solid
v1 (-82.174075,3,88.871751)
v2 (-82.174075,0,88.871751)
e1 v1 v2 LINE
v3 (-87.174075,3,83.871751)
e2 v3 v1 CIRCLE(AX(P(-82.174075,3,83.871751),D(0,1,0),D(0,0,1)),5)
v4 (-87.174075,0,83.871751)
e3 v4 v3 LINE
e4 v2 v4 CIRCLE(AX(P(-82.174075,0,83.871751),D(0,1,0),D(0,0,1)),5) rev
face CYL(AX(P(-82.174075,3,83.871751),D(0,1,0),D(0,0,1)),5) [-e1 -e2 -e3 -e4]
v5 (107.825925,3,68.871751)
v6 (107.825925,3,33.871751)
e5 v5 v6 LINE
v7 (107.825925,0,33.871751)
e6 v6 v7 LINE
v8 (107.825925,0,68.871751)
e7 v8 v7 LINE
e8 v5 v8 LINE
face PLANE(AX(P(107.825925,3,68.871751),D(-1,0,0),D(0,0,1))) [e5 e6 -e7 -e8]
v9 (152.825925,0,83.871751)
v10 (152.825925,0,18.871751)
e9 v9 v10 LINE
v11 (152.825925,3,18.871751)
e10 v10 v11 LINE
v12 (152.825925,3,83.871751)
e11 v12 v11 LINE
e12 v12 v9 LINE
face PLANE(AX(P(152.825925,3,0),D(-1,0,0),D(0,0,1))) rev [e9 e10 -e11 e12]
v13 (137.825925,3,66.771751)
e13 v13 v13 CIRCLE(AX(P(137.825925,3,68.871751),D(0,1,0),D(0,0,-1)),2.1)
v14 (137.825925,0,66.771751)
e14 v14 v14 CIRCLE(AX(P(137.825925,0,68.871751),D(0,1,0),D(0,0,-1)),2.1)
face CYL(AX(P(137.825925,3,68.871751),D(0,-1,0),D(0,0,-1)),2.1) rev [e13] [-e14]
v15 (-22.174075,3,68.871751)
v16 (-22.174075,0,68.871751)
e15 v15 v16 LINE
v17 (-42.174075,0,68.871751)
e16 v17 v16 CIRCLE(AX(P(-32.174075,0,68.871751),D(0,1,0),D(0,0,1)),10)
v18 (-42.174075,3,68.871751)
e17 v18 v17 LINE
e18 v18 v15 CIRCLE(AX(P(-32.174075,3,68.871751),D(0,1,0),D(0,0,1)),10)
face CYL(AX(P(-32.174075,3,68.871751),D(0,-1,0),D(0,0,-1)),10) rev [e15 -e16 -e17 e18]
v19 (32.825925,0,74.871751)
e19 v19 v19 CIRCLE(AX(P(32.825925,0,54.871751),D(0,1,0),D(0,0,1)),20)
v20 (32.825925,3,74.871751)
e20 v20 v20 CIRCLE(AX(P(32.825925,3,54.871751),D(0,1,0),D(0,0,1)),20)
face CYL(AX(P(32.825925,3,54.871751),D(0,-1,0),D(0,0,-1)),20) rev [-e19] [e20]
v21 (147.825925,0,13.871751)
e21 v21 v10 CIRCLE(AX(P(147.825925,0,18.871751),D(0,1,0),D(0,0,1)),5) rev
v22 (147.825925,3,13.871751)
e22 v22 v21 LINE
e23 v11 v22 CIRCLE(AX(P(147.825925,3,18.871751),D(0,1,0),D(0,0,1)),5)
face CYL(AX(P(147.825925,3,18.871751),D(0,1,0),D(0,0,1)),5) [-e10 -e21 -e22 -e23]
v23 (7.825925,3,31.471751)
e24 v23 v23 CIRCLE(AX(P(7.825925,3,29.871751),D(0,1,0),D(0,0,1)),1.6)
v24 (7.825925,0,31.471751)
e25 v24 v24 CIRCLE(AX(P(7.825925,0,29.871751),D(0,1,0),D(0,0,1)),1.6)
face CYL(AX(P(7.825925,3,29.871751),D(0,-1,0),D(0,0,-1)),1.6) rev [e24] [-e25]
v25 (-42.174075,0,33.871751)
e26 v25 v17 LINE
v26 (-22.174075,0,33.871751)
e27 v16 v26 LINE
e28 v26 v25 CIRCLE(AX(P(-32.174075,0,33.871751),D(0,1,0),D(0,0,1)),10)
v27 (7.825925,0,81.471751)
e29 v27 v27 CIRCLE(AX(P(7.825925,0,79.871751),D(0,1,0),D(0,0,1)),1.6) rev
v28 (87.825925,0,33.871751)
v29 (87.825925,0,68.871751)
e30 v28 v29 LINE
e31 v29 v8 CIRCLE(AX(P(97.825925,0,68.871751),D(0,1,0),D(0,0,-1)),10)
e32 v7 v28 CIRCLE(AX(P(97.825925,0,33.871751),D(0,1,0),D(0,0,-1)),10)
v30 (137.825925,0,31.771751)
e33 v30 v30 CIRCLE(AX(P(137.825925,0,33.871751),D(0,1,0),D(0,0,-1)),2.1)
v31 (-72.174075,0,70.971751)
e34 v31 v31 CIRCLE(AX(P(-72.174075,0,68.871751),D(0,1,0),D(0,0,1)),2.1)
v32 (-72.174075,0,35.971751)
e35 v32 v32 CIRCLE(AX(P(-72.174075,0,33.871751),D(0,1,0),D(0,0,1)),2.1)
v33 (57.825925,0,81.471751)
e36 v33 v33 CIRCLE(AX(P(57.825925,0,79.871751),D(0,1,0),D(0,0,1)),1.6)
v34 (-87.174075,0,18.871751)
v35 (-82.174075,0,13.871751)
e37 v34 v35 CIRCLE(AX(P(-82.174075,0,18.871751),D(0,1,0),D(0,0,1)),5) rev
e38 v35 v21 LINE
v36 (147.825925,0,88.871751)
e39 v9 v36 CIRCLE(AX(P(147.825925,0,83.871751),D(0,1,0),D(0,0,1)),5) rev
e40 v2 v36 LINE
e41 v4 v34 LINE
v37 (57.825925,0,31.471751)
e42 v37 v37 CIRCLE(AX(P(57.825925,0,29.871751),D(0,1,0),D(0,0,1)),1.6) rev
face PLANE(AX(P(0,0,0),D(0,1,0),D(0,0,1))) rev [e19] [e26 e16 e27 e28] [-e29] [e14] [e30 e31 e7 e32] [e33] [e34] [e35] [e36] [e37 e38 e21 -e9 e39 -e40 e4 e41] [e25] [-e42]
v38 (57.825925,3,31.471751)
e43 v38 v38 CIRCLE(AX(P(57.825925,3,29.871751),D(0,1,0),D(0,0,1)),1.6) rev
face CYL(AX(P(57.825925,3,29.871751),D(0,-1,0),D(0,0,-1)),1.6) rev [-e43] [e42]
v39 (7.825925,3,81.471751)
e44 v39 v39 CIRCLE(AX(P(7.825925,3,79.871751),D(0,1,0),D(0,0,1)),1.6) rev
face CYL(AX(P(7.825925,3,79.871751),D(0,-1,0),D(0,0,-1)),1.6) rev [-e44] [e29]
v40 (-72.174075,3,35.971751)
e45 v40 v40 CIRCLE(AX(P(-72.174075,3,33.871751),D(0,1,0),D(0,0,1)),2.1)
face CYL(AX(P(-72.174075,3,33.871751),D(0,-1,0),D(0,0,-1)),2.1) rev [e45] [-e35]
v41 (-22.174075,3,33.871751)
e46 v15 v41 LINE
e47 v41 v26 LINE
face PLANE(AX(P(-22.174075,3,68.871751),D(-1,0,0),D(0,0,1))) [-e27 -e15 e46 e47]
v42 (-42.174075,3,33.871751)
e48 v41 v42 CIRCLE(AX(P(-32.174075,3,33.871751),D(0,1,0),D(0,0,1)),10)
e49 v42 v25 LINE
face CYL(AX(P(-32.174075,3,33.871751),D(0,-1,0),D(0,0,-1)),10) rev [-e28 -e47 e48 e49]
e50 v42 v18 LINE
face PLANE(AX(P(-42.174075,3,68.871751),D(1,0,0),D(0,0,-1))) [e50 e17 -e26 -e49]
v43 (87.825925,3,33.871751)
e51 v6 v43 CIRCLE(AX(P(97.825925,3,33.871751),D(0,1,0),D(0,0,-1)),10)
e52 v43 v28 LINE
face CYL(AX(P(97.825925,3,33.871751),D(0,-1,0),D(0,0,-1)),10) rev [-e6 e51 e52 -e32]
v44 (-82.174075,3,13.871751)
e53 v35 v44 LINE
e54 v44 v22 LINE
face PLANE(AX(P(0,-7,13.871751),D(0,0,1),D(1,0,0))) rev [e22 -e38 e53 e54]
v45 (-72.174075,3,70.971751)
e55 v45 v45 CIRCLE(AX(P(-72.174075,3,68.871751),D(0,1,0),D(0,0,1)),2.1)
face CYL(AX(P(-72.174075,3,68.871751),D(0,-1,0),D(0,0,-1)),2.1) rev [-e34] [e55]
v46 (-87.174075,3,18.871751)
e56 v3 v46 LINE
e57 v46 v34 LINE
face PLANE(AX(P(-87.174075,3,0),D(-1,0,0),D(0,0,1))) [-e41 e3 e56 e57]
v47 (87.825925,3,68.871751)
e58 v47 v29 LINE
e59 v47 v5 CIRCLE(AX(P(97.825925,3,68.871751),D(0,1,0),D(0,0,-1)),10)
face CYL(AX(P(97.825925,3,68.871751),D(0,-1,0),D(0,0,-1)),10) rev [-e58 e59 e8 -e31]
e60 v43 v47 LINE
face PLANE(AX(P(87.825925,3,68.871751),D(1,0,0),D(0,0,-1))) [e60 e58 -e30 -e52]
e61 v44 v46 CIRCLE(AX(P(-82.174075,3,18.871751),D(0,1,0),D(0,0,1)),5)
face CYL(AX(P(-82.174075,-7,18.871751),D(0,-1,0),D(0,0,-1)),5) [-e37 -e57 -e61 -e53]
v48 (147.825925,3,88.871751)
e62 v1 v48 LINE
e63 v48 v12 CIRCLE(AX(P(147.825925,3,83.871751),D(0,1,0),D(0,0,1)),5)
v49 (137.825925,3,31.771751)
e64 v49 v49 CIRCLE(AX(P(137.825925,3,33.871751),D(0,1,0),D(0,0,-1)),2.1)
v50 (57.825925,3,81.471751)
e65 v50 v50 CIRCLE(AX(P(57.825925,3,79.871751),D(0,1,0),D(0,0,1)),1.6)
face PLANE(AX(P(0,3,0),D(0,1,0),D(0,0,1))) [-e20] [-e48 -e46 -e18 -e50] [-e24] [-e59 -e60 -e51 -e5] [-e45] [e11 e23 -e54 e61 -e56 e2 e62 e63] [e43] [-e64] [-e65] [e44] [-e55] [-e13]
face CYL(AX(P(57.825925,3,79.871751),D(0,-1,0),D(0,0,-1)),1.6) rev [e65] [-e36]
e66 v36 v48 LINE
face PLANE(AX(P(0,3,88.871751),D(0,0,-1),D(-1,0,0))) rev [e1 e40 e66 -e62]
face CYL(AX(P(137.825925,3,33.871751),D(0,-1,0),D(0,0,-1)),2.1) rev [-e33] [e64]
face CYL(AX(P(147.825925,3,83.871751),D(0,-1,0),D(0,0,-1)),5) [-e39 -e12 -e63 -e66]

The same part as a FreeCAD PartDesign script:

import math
import FreeCAD as App
import Part
import Sketcher
Q = App.Units.Quantity


def edges_at(feature, points):
    """Names of the edges that pass closest to the given points."""
    edges = feature.Shape.Edges
    near = lambda p: min(range(len(edges)), key=lambda i: edges[i].distToShape(Part.Vertex(*p))[0])
    return sorted({f"Edge{near(p) + 1}" for p in points})


def add_polygon(sketch, points):
    """Adds a closed chain of lines whose ends are joined by coincident constraints."""
    first, n = sketch.GeometryCount, len(points)
    for a, b in zip(points, points[1:] + points[:1]):
        sketch.addGeometry(Part.LineSegment(App.Vector(*a, 0), App.Vector(*b, 0)), False)
    for i in range(n):
        sketch.addConstraint(Sketcher.Constraint("Coincident", first + i, 2, first + (i + 1) % n, 1))

doc = App.newDocument("Part")
body = doc.addObject("PartDesign::Body", "Body")

sketch1 = body.newObject("Sketcher::SketchObject", "Sketch")
sketch1.AttachmentSupport = (doc.getObject("XZ_Plane"), [""])
sketch1.MapMode = "FlatFace"
add_polygon(sketch1, [(-167.2, -46.1), (-167.2, 13.9), (-87.2, 13.9), (-87.2, 88.9), (152.8, 88.9), (152.8, 13.9), (232.8, 13.9), (232.8, -46.1)])
sketch1.addGeometry(Part.Circle(App.Vector(-14.7, -11.1, 0), App.Vector(0, 0, 1), 1.6), False)
add_polygon(sketch1, [(43.3, -0.1), (22.3, -0.1), (22.3, -21.1), (43.3, -21.1)])
sketch1.addGeometry(Part.Circle(App.Vector(80.3, -11.1, 0), App.Vector(0, 0, 1), 1.6), False)
sketch1.addGeometry(Part.Circle(App.Vector(-14.7, -36.1, 0), App.Vector(0, 0, 1), 1.6), False)
sketch1.addGeometry(Part.Circle(App.Vector(80.3, -36.1, 0), App.Vector(0, 0, 1), 1.6), False)
sketch1.addGeometry(Part.Circle(App.Vector(57.8, 29.9, 0), App.Vector(0, 0, 1), 1.6), False)
sketch1.addGeometry(Part.Circle(App.Vector(7.8, 79.9, 0), App.Vector(0, 0, 1), 1.6), False)
sketch1.addGeometry(Part.Circle(App.Vector(57.8, 79.9, 0), App.Vector(0, 0, 1), 1.6), False)
sketch1.addGeometry(Part.Circle(App.Vector(32.8, 54.9, 0), App.Vector(0, 0, 1), 20), False)
sketch1.addGeometry(Part.Circle(App.Vector(7.8, 29.9, 0), App.Vector(0, 0, 1), 1.6), False)
sketch1.addConstraint([
    Sketcher.Constraint("Vertical", 0),
    Sketcher.Constraint("Horizontal", 1),
    Sketcher.Constraint("Vertical", 2),
    Sketcher.Constraint("Horizontal", 3),
    Sketcher.Constraint("Vertical", 4),
    Sketcher.Constraint("Horizontal", 5),
    Sketcher.Constraint("Vertical", 6),
    Sketcher.Constraint("Horizontal", 7),
    Sketcher.Constraint("Horizontal", 9),
    Sketcher.Constraint("Vertical", 10),
    Sketcher.Constraint("Horizontal", 11),
    Sketcher.Constraint("Vertical", 12),
    Sketcher.Constraint("Equal", 8, 13),
    Sketcher.Constraint("Equal", 13, 14),
    Sketcher.Constraint("Equal", 14, 15),
    Sketcher.Constraint("Equal", 15, 16),
    Sketcher.Constraint("Equal", 16, 17),
    Sketcher.Constraint("Equal", 17, 18),
    Sketcher.Constraint("Equal", 18, 20),
    Sketcher.Constraint("Horizontal", 8, 3, 13, 3),
    Sketcher.Constraint("Horizontal", 14, 3, 15, 3),
    Sketcher.Constraint("Horizontal", 17, 3, 18, 3),
    Sketcher.Constraint("Horizontal", 16, 3, 20, 3),
    Sketcher.Constraint("Horizontal", 1, 2, 4, 2),
    Sketcher.Constraint("Vertical", 8, 3, 14, 3),
    Sketcher.Constraint("Vertical", 13, 3, 15, 3),
    Sketcher.Constraint("Vertical", 16, 3, 18, 3),
    Sketcher.Constraint("Vertical", 17, 3, 20, 3),
    Sketcher.Constraint("Equal", 1, 5),
    Sketcher.Constraint("Equal", 11, 10),
    Sketcher.Constraint("Diameter", 19, Q("40 mm")),
    Sketcher.Constraint("Diameter", 8, Q("3.2 mm")),
    Sketcher.Constraint("DistanceX", 1, 1, 1, 2, Q("80 mm")),
    Sketcher.Constraint("DistanceX", 3, 1, 3, 2, Q("240 mm")),
    Sketcher.Constraint("DistanceX", 9, 2, 9, 1, Q("21 mm")),
    Sketcher.Constraint("DistanceY", 0, 1, 0, 2, Q("60 mm")),
    Sketcher.Constraint("DistanceY", 2, 1, 2, 2, Q("75 mm")),
    Sketcher.Constraint("DistanceX", 8, 3, 13, 3, Q("95 mm")),
    Sketcher.Constraint("DistanceY", 14, 3, 8, 3, Q("25 mm")),
    Sketcher.Constraint("DistanceY", 13, 3, 16, 3, Q("41 mm")),
    Sketcher.Constraint("DistanceX", 17, 3, 16, 3, Q("50 mm")),
    Sketcher.Constraint("DistanceY", 16, 3, 17, 3, Q("50 mm")),
    Sketcher.Constraint("DistanceX", 17, 3, 19, 3, Q("25 mm")),
    Sketcher.Constraint("DistanceY", 19, 3, 17, 3, Q("25 mm")),
    Sketcher.Constraint("DistanceY", 8, 3, 0, 2, Q("25 mm")),
    Sketcher.Constraint("DistanceX", 0, 2, 20, 3, Q("175 mm")),
    Sketcher.Constraint("DistanceY", 9, 2, 20, 3, Q("30 mm")),
    Sketcher.Constraint("DistanceX", 8, 3, 9, 2, Q("37 mm")),
    Sketcher.Constraint("DistanceX", 16, 3, 13, 3, Q("22.5 mm")),
    Sketcher.Constraint("DistanceY", 8, 3, -1, 1, Q("11.128249 mm")),
    Sketcher.Constraint("DistanceX", 8, 3, -1, 1, Q("14.674075 mm")),
])
pad1 = body.newObject("PartDesign::Pad", "Pad")
pad1.Profile = sketch1
pad1.Length = 3
pad1.Reversed = True

sketch2 = body.newObject("Sketcher::SketchObject", "Sketch001")
sketch2.AttachmentSupport = (doc.getObject("XZ_Plane"), [""])
sketch2.MapMode = "FlatFace"
sketch2.AttachmentOffset = App.Placement(App.Vector(0, 0, -3), App.Rotation())
sketch2.addGeometry([
    Part.Circle(App.Vector(-149.2, -29.6, 0), App.Vector(0, 0, 1), 2),
    Part.Circle(App.Vector(-149.2, -2.6, 0), App.Vector(0, 0, 1), 2),
    Part.Circle(App.Vector(-121.7, -29.6, 0), App.Vector(0, 0, 1), 2),
    Part.Circle(App.Vector(-121.7, -2.6, 0), App.Vector(0, 0, 1), 2),
    Part.Circle(App.Vector(-51.7, -41.1, 0), App.Vector(0, 0, 1), 2.1),
    Part.Circle(App.Vector(-86.7, -41.1, 0), App.Vector(0, 0, 1), 2.1),
    Part.Circle(App.Vector(-51.7, 8.9, 0), App.Vector(0, 0, 1), 2.1),
    Part.Circle(App.Vector(-86.7, 8.9, 0), App.Vector(0, 0, 1), 2.1),
    Part.Circle(App.Vector(-135.4, -41.1, 0), App.Vector(0, 0, 1), 2.1),
    Part.Circle(App.Vector(-135.4, 8.9, 0), App.Vector(0, 0, 1), 2.1),
    Part.Circle(App.Vector(201.1, 8.9, 0), App.Vector(0, 0, 1), 2.1),
    Part.Circle(App.Vector(201.1, -41.1, 0), App.Vector(0, 0, 1), 2.1),
    Part.Circle(App.Vector(152.3, 8.9, 0), App.Vector(0, 0, 1), 2.1),
    Part.Circle(App.Vector(117.3, 8.9, 0), App.Vector(0, 0, 1), 2.1),
    Part.Circle(App.Vector(152.3, -41.1, 0), App.Vector(0, 0, 1), 2.1),
    Part.Circle(App.Vector(117.3, -41.1, 0), App.Vector(0, 0, 1), 2.1),
    Part.Circle(App.Vector(187.3, -2.6, 0), App.Vector(0, 0, 1), 2),
    Part.Circle(App.Vector(187.3, -29.6, 0), App.Vector(0, 0, 1), 2),
    Part.Circle(App.Vector(214.8, -2.6, 0), App.Vector(0, 0, 1), 2),
    Part.Circle(App.Vector(214.8, -29.6, 0), App.Vector(0, 0, 1), 2),
], False)
sketch2.addConstraint([
    Sketcher.Constraint("Equal", 0, 1),
    Sketcher.Constraint("Equal", 1, 2),
    Sketcher.Constraint("Equal", 2, 3),
    Sketcher.Constraint("Equal", 4, 5),
    Sketcher.Constraint("Equal", 5, 6),
    Sketcher.Constraint("Equal", 6, 7),
    Sketcher.Constraint("Equal", 7, 8),
    Sketcher.Constraint("Equal", 8, 9),
    Sketcher.Constraint("Equal", 9, 10),
    Sketcher.Constraint("Equal", 10, 11),
    Sketcher.Constraint("Equal", 11, 12),
    Sketcher.Constraint("Equal", 12, 13),
    Sketcher.Constraint("Equal", 13, 14),
    Sketcher.Constraint("Equal", 14, 15),
    Sketcher.Constraint("Equal", 3, 16),
    Sketcher.Constraint("Equal", 16, 17),
    Sketcher.Constraint("Equal", 17, 18),
    Sketcher.Constraint("Equal", 18, 19),
    Sketcher.Constraint("Horizontal", 0, 3, 2, 3),
    Sketcher.Constraint("Horizontal", 1, 3, 3, 3),
    Sketcher.Constraint("Horizontal", 4, 3, 5, 3),
    Sketcher.Constraint("Horizontal", 6, 3, 7, 3),
    Sketcher.Constraint("Horizontal", 5, 3, 8, 3),
    Sketcher.Constraint("Horizontal", 7, 3, 9, 3),
    Sketcher.Constraint("Horizontal", 9, 3, 10, 3),
    Sketcher.Constraint("Horizontal", 8, 3, 11, 3),
    Sketcher.Constraint("Horizontal", 10, 3, 12, 3),
    Sketcher.Constraint("Horizontal", 12, 3, 13, 3),
    Sketcher.Constraint("Horizontal", 11, 3, 14, 3),
    Sketcher.Constraint("Horizontal", 14, 3, 15, 3),
    Sketcher.Constraint("Horizontal", 3, 3, 16, 3),
    Sketcher.Constraint("Horizontal", 2, 3, 17, 3),
    Sketcher.Constraint("Horizontal", 16, 3, 18, 3),
    Sketcher.Constraint("Horizontal", 17, 3, 19, 3),
    Sketcher.Constraint("Vertical", 0, 3, 1, 3),
    Sketcher.Constraint("Vertical", 2, 3, 3, 3),
    Sketcher.Constraint("Vertical", 4, 3, 6, 3),
    Sketcher.Constraint("Vertical", 5, 3, 7, 3),
    Sketcher.Constraint("Vertical", 8, 3, 9, 3),
    Sketcher.Constraint("Vertical", 10, 3, 11, 3),
    Sketcher.Constraint("Vertical", 12, 3, 14, 3),
    Sketcher.Constraint("Vertical", 13, 3, 15, 3),
    Sketcher.Constraint("Vertical", 16, 3, 17, 3),
    Sketcher.Constraint("Vertical", 18, 3, 19, 3),
    Sketcher.Constraint("Diameter", 0, Q("4.1 mm")),
    Sketcher.Constraint("Diameter", 4, Q("4.2 mm")),
    Sketcher.Constraint("DistanceY", 0, 3, 1, 3, Q("27 mm")),
    Sketcher.Constraint("DistanceX", 2, 3, 4, 3, Q("70 mm")),
    Sketcher.Constraint("DistanceX", 5, 3, 4, 3, Q("35 mm")),
    Sketcher.Constraint("DistanceY", 4, 3, 6, 3, Q("50 mm")),
    Sketcher.Constraint("DistanceX", 6, 3, 12, 3, Q("204 mm")),
    Sketcher.Constraint("DistanceX", 13, 3, 12, 3, Q("35 mm")),
    Sketcher.Constraint("DistanceX", 12, 3, 16, 3, Q("35 mm")),
    Sketcher.Constraint("DistanceX", 0, 3, 2, 3, Q("27.5 mm")),
    Sketcher.Constraint("DistanceY", 4, 3, 2, 3, Q("11.5 mm")),
    Sketcher.Constraint("DistanceX", 16, 3, 18, 3, Q("27.5 mm")),
    Sketcher.Constraint("DistanceX", 8, 3, 2, 3, Q("13.75 mm")),
    Sketcher.Constraint("DistanceX", 6, 3, 10, 3, Q("252.75 mm")),
    Sketcher.Constraint("DistanceY", 0, 3, -1, 1, Q("29.628249 mm")),
    Sketcher.Constraint("DistanceX", 0, 3, -1, 1, Q("149.174075 mm")),
])
pocket1 = body.newObject("PartDesign::Pocket", "Pocket")
pocket1.Profile = sketch2
pocket1.Type = "ThroughAll"
pocket1.Reversed = True
doc.recompute()

fillet = body.newObject("PartDesign::Fillet", "Fillet")
fillet.Base = (pocket1, edges_at(pocket1, [
    (-167.174, 1.5, 13.872),
    (-167.174, 1.5, -46.128),
    (232.826, 1.5, -46.128),
    (232.826, 1.5, 13.872),
    (152.826, 1.5, 13.872),
    (152.826, 1.5, 88.872),
    (-87.174, 1.5, 88.872),
    (-87.174, 1.5, 13.872),
]))
fillet.Radius = 5

sketch3 = body.newObject("Sketcher::SketchObject", "Sketch002")
sketch3.AttachmentSupport = (doc.getObject("XZ_Plane"), [""])
sketch3.MapMode = "FlatFace"
sketch3.addGeometry([
    Part.Circle(App.Vector(-72.2, 33.9, 0), App.Vector(0, 0, 1), 2.1),
    Part.Circle(App.Vector(-72.2, 68.9, 0), App.Vector(0, 0, 1), 2.1),
    Part.Circle(App.Vector(137.8, 68.9, 0), App.Vector(0, 0, 1), 2.1),
    Part.Circle(App.Vector(137.8, 33.9, 0), App.Vector(0, 0, 1), 2.1),
    Part.LineSegment(App.Vector(-42.2, 33.9, 0), App.Vector(-42.2, 68.9, 0)),
    Part.ArcOfCircle(Part.Circle(App.Vector(-32.2, 68.9, 0), App.Vector(0, 0, 1), 10), math.radians(0), math.radians(180)),
    Part.LineSegment(App.Vector(-22.2, 68.9, 0), App.Vector(-22.2, 33.9, 0)),
    Part.ArcOfCircle(Part.Circle(App.Vector(-32.2, 33.9, 0), App.Vector(0, 0, 1), 10), math.radians(180), math.radians(360)),
    Part.LineSegment(App.Vector(107.8, 68.9, 0), App.Vector(107.8, 33.9, 0)),
    Part.ArcOfCircle(Part.Circle(App.Vector(97.8, 33.9, 0), App.Vector(0, 0, 1), 10), math.radians(180), math.radians(360)),
    Part.LineSegment(App.Vector(87.8, 33.9, 0), App.Vector(87.8, 68.9, 0)),
    Part.ArcOfCircle(Part.Circle(App.Vector(97.8, 68.9, 0), App.Vector(0, 0, 1), 10), math.radians(0), math.radians(180)),
], False)
sketch3.addConstraint([
    Sketcher.Constraint("Tangent", 4, 2, 5, 2),
    Sketcher.Constraint("Tangent", 5, 1, 6, 1),
    Sketcher.Constraint("Tangent", 6, 2, 7, 2),
    Sketcher.Constraint("Tangent", 7, 1, 4, 1),
    Sketcher.Constraint("Tangent", 8, 2, 9, 2),
    Sketcher.Constraint("Tangent", 9, 1, 10, 1),
    Sketcher.Constraint("Tangent", 10, 2, 11, 2),
    Sketcher.Constraint("Tangent", 11, 1, 8, 1),
    Sketcher.Constraint("Vertical", 4),
    Sketcher.Constraint("Vertical", 6),
    Sketcher.Constraint("Vertical", 8),
    Sketcher.Constraint("Vertical", 10),
    Sketcher.Constraint("Equal", 0, 1),
    Sketcher.Constraint("Equal", 1, 2),
    Sketcher.Constraint("Equal", 2, 3),
    Sketcher.Constraint("Equal", 7, 9),
    Sketcher.Constraint("Horizontal", 1, 3, 2, 3),
    Sketcher.Constraint("Horizontal", 0, 3, 3, 3),
    Sketcher.Constraint("Horizontal", 2, 3, 5, 3),
    Sketcher.Constraint("Horizontal", 3, 3, 7, 3),
    Sketcher.Constraint("Horizontal", 7, 3, 9, 3),
    Sketcher.Constraint("Horizontal", 5, 3, 11, 3),
    Sketcher.Constraint("Vertical", 0, 3, 1, 3),
    Sketcher.Constraint("Vertical", 2, 3, 3, 3),
    Sketcher.Constraint("Radius", 5, Q("10 mm")),
    Sketcher.Constraint("Diameter", 0, Q("4.2 mm")),
    Sketcher.Constraint("DistanceY", 4, 1, 4, 2, Q("35 mm")),
    Sketcher.Constraint("DistanceX", 1, 3, 2, 3, Q("210 mm")),
    Sketcher.Constraint("DistanceX", 1, 3, 5, 3, Q("40 mm")),
    Sketcher.Constraint("DistanceX", 9, 3, 3, 3, Q("40 mm")),
    Sketcher.Constraint("DistanceY", -1, 1, 0, 3, Q("33.871751 mm")),
    Sketcher.Constraint("DistanceX", 0, 3, -1, 1, Q("72.174075 mm")),
])
pocket2 = body.newObject("PartDesign::Pocket", "Pocket001")
pocket2.Profile = sketch3
pocket2.Type = "ThroughAll"

sketch4 = body.newObject("Sketcher::SketchObject", "Sketch003")
sketch4.AttachmentSupport = (doc.getObject("XZ_Plane"), [""])
sketch4.MapMode = "FlatFace"
sketch4.AttachmentOffset = App.Placement(App.Vector(0, 0, -3), App.Rotation())
sketch4.addGeometry([
    Part.LineSegment(App.Vector(227.8, -46.1, 0), App.Vector(-162.2, -46.1, 0)),
    Part.ArcOfCircle(Part.Circle(App.Vector(-162.2, -41.1, 0), App.Vector(0, 0, 1), 5), math.radians(180), math.radians(270)),
    Part.LineSegment(App.Vector(-167.2, -41.1, 0), App.Vector(-167.2, 8.9, 0)),
    Part.ArcOfCircle(Part.Circle(App.Vector(-162.2, 8.9, 0), App.Vector(0, 0, 1), 5), math.radians(90), math.radians(180)),
    Part.LineSegment(App.Vector(-162.2, 13.9, 0), App.Vector(-92.2, 13.9, 0)),
    Part.ArcOfCircle(Part.Circle(App.Vector(-92.2, 18.9, 0), App.Vector(0, 0, 1), 5), math.radians(-90), math.radians(0)),
    Part.LineSegment(App.Vector(-87.2, 18.9, 0), App.Vector(-87.2, 13.9, 0)),
    Part.LineSegment(App.Vector(-87.2, 13.9, 0), App.Vector(152.8, 13.9, 0)),
    Part.LineSegment(App.Vector(152.8, 13.9, 0), App.Vector(152.8, 18.9, 0)),
    Part.ArcOfCircle(Part.Circle(App.Vector(157.8, 18.9, 0), App.Vector(0, 0, 1), 5), math.radians(180), math.radians(270)),
    Part.LineSegment(App.Vector(157.8, 13.9, 0), App.Vector(227.8, 13.9, 0)),
    Part.ArcOfCircle(Part.Circle(App.Vector(227.8, 8.9, 0), App.Vector(0, 0, 1), 5), math.radians(0), math.radians(90)),
    Part.LineSegment(App.Vector(232.8, 8.9, 0), App.Vector(232.8, -41.1, 0)),
    Part.ArcOfCircle(Part.Circle(App.Vector(227.8, -41.1, 0), App.Vector(0, 0, 1), 5), math.radians(-90), math.radians(0)),
], False)
sketch4.addConstraint([
    Sketcher.Constraint("Tangent", 0, 2, 1, 2),
    Sketcher.Constraint("Tangent", 1, 1, 2, 1),
    Sketcher.Constraint("Tangent", 2, 2, 3, 2),
    Sketcher.Constraint("Tangent", 3, 1, 4, 1),
    Sketcher.Constraint("Tangent", 4, 2, 5, 1),
    Sketcher.Constraint("Tangent", 5, 2, 6, 1),
    Sketcher.Constraint("Coincident", 6, 2, 7, 1),
    Sketcher.Constraint("Coincident", 7, 2, 8, 1),
    Sketcher.Constraint("Tangent", 8, 2, 9, 1),
    Sketcher.Constraint("Tangent", 9, 2, 10, 1),
    Sketcher.Constraint("Tangent", 10, 2, 11, 2),
    Sketcher.Constraint("Tangent", 11, 1, 12, 1),
    Sketcher.Constraint("Tangent", 12, 2, 13, 2),
    Sketcher.Constraint("Tangent", 13, 1, 0, 1),
    Sketcher.Constraint("Horizontal", 0),
    Sketcher.Constraint("Vertical", 2),
    Sketcher.Constraint("Horizontal", 4),
    Sketcher.Constraint("Vertical", 6),
    Sketcher.Constraint("Horizontal", 7),
    Sketcher.Constraint("Vertical", 8),
    Sketcher.Constraint("Horizontal", 10),
    Sketcher.Constraint("Vertical", 12),
    Sketcher.Constraint("Equal", 1, 3),
    Sketcher.Constraint("Equal", 3, 5),
    Sketcher.Constraint("Equal", 5, 9),
    Sketcher.Constraint("Equal", 9, 11),
    Sketcher.Constraint("Equal", 11, 13),
    Sketcher.Constraint("Horizontal", 5, 3, 9, 3),
    Sketcher.Constraint("Horizontal", 4, 2, 6, 2),
    Sketcher.Constraint("Equal", 4, 10),
    Sketcher.Constraint("Radius", 1, Q("5 mm")),
    Sketcher.Constraint("DistanceX", 0, 2, 0, 1, Q("390 mm")),
    Sketcher.Constraint("DistanceX", 4, 1, 4, 2, Q("70 mm")),
    Sketcher.Constraint("DistanceY", 2, 1, 2, 2, Q("50 mm")),
    Sketcher.Constraint("DistanceY", 1, 3, -1, 1, Q("41.128249 mm")),
    Sketcher.Constraint("DistanceX", 1, 3, -1, 1, Q("162.174075 mm")),
])
pocket3 = body.newObject("PartDesign::Pocket", "Pocket002")
pocket3.Profile = sketch4
pocket3.Length = 10
pocket3.Reversed = True
doc.recompute()

fillet2 = body.newObject("PartDesign::Fillet", "Fillet001")
fillet2.Base = (pocket3, edges_at(pocket3, [(152.826, 1.5, 13.872), (-87.174, 1.5, 13.872)]))
fillet2.Radius = 5

doc.recompute()
